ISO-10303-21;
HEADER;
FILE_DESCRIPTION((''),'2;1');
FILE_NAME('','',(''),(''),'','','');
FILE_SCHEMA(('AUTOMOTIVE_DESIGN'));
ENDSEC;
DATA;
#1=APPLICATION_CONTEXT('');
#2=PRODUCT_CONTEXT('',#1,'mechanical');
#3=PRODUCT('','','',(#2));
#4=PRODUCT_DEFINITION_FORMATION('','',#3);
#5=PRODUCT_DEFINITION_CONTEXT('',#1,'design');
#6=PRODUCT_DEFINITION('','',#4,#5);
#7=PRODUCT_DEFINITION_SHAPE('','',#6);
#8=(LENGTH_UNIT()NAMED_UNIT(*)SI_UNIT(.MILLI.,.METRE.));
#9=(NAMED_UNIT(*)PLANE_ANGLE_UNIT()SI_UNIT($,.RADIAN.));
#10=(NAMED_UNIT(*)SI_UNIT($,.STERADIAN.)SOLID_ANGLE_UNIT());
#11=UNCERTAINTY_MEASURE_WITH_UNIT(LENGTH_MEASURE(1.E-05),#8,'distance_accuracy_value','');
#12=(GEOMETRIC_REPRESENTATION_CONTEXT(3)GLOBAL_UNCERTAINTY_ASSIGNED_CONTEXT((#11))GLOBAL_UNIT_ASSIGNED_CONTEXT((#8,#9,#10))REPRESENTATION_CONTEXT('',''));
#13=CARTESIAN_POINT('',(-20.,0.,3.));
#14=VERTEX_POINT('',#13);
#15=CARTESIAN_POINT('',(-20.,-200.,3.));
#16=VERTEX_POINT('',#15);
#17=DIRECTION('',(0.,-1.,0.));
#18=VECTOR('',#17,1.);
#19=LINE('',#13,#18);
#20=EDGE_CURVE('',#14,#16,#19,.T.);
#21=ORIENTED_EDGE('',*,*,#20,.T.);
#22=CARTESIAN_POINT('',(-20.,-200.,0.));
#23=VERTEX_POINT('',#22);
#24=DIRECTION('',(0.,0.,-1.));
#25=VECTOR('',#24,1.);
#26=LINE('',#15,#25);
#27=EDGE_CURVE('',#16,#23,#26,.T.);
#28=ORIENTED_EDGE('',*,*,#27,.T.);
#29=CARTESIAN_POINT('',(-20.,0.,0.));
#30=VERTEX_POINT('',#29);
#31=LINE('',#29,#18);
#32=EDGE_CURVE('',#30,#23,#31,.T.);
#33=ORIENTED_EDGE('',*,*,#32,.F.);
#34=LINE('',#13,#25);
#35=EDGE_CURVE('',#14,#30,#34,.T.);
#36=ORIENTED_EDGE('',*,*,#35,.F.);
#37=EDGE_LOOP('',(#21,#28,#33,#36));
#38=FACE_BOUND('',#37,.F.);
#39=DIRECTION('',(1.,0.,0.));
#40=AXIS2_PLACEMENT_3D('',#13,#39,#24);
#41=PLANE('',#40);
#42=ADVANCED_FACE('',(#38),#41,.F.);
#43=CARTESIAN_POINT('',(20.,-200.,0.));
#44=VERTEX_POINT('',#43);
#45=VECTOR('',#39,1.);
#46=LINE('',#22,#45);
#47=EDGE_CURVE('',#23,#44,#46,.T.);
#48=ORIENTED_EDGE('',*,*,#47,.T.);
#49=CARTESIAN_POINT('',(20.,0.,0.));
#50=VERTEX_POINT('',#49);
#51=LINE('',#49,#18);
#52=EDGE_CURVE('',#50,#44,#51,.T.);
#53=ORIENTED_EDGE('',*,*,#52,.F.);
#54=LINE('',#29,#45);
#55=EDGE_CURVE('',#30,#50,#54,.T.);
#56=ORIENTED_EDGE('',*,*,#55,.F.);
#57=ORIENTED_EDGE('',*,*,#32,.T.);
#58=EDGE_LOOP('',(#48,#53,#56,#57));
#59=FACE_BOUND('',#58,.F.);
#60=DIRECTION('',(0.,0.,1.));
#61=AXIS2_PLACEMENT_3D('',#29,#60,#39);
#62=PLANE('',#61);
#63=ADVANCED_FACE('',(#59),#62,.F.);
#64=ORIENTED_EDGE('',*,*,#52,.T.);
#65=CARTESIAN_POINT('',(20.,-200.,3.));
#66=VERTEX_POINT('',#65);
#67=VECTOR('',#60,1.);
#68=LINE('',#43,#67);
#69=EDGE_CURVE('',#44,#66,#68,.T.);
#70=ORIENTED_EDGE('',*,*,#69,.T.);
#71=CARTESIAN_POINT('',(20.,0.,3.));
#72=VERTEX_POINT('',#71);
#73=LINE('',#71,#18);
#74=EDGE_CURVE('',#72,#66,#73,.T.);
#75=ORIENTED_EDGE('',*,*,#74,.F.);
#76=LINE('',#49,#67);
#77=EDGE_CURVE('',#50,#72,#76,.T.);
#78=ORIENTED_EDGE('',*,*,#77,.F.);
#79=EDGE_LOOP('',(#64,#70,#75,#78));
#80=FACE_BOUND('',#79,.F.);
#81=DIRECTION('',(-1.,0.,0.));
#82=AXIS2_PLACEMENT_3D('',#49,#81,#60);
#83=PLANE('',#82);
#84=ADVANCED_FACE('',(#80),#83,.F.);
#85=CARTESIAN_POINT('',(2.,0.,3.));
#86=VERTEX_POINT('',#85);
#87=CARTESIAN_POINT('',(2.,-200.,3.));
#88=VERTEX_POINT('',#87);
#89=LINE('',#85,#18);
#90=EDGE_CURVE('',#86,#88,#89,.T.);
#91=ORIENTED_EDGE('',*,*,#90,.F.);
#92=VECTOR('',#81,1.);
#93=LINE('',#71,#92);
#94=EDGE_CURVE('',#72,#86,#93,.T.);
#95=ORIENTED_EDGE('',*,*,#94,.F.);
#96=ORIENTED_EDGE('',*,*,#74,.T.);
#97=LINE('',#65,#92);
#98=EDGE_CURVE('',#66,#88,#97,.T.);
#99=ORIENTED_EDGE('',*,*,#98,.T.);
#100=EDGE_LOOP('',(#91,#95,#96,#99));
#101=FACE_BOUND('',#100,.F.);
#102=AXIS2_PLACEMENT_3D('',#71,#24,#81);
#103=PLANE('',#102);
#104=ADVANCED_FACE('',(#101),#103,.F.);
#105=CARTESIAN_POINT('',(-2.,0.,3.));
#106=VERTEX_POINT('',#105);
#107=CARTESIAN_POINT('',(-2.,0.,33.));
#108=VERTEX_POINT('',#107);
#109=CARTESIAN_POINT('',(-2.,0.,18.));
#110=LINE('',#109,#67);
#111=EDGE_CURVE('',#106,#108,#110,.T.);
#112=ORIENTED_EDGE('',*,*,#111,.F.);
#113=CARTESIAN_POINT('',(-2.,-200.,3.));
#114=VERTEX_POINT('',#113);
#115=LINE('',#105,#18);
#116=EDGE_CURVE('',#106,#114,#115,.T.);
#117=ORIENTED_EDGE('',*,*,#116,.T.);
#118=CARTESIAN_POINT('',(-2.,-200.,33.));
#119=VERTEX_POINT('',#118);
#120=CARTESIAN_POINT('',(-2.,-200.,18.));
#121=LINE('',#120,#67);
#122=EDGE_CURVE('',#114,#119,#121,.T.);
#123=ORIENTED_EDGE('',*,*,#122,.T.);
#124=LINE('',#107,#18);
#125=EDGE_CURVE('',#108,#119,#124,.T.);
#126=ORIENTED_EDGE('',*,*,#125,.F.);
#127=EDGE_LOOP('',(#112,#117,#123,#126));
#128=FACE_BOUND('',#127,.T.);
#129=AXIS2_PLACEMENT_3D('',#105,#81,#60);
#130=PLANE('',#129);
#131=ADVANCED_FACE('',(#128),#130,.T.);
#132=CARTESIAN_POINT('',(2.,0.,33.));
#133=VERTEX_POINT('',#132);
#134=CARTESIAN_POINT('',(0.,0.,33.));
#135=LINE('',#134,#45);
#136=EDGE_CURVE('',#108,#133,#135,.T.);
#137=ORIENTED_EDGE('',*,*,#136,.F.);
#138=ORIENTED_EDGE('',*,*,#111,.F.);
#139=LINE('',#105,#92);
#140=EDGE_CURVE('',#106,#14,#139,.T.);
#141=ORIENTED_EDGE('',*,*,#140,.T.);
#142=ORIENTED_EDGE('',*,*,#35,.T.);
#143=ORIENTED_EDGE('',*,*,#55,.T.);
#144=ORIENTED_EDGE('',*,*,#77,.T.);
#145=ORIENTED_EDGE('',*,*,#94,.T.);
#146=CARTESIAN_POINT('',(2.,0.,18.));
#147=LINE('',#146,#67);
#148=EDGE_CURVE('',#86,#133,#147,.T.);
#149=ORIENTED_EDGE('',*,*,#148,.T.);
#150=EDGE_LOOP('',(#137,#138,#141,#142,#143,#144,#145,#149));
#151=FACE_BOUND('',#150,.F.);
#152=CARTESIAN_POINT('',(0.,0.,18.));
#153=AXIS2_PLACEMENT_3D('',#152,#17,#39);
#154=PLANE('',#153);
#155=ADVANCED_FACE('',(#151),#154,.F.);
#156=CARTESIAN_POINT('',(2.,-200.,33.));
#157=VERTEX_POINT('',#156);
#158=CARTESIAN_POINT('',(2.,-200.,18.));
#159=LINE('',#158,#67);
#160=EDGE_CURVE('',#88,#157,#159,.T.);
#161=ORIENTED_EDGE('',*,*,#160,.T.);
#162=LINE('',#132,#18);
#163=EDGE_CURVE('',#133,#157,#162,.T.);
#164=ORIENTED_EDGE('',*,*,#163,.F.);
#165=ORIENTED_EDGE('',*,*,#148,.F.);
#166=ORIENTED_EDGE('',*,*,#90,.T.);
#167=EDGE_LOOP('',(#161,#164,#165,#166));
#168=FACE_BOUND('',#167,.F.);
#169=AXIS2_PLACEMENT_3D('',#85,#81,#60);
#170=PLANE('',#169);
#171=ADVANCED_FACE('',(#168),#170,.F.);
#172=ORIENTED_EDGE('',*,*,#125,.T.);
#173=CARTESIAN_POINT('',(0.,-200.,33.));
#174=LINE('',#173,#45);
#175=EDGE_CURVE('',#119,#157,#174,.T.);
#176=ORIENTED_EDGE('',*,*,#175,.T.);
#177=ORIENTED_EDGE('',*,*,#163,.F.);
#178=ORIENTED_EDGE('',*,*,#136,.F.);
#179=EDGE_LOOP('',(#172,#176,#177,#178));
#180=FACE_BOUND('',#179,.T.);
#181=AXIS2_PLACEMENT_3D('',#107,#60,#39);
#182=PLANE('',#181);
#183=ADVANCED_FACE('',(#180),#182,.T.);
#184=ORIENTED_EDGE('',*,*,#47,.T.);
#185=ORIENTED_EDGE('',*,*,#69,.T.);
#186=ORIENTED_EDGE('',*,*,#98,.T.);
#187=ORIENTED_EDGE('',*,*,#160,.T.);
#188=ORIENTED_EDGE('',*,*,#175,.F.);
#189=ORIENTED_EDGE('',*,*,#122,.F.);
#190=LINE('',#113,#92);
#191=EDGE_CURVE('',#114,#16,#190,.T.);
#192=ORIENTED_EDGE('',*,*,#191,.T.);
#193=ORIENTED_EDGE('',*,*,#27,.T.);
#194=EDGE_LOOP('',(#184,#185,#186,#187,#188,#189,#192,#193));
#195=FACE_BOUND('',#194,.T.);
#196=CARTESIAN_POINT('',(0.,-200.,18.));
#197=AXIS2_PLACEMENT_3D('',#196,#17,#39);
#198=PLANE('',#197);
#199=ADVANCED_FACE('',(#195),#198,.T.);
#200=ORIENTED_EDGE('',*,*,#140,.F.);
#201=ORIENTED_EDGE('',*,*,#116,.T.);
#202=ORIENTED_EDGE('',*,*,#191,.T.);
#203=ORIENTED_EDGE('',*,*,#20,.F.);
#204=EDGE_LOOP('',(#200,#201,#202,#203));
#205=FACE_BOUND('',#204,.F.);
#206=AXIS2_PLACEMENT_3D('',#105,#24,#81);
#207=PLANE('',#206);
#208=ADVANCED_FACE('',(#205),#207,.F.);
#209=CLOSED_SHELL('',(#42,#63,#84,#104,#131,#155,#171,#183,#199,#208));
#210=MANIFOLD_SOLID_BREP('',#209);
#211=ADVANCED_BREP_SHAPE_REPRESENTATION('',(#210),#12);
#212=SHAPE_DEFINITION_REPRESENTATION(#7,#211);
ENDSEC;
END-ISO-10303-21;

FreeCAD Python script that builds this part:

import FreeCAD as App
import Part
import Sketcher

V = App.Vector
Q = App.Units.Quantity


def add_polygon(sketch, points):
    """Adds a closed chain of lines whose ends are joined by coincident constraints."""
    first, n = sketch.GeometryCount, len(points)
    for a, b in zip(points, points[1:] + points[:1]):
        sketch.addGeometry(Part.LineSegment(App.Vector(*a, 0), App.Vector(*b, 0)), False)
    for i in range(n):
        sketch.addConstraint(Sketcher.Constraint("Coincident", first + i, 2, first + (i + 1) % n, 1))

doc = App.newDocument("Part")
params = doc.addObject("Spreadsheet::Sheet", "Params")
for row, (alias, value) in enumerate([
    ("sketch1_width", "18 mm"),
    ("sketch1_width2", "40 mm"),
    ("sketch1_height", "30 mm"),
    ("sketch1_height2", "3 mm"),
    ("pad1_length", "200 mm"),
], start=1):
    params.set(f"A{row}", alias)
    params.set(f"B{row}", "=" + value)
    params.setAlias(f"B{row}", alias)

body = doc.addObject("PartDesign::Body", "Body")

sketch1 = body.newObject("Sketcher::SketchObject", "Sketch")
sketch1.AttachmentSupport = (doc.getObject("XZ_Plane"), [""])
sketch1.MapMode = "FlatFace"
add_polygon(sketch1, [(-2, 33), (-2, 3), (-20, 3), (-20, 0), (20, 0), (20, 3), (2, 3), (2, 33)])
sketch1.addConstraint([
    Sketcher.Constraint("Vertical", 0),
    Sketcher.Constraint("Horizontal", 1),
    Sketcher.Constraint("Vertical", 2),
    Sketcher.Constraint("Horizontal", 3),
    Sketcher.Constraint("Vertical", 4),
    Sketcher.Constraint("Horizontal", 5),
    Sketcher.Constraint("Vertical", 6),
    Sketcher.Constraint("Horizontal", 7),
    Sketcher.Constraint("Symmetric", 2, 2, 3, 2, -1, 1),
    Sketcher.Constraint("Symmetric", 0, 2, 5, 2, -2),
    Sketcher.Constraint("DistanceX", 1, 2, 1, 1, Q("18 mm")),
    Sketcher.Constraint("DistanceX", 3, 1, 3, 2, Q("40 mm")),
    Sketcher.Constraint("DistanceY", 0, 2, 0, 1, Q("30 mm")),
    Sketcher.Constraint("DistanceY", 2, 2, 2, 1, Q("3 mm")),
])
sketch1.setExpression("Constraints[18]", "Params.sketch1_width")
sketch1.setExpression("Constraints[19]", "Params.sketch1_width2")
sketch1.setExpression("Constraints[20]", "Params.sketch1_height")
sketch1.setExpression("Constraints[21]", "Params.sketch1_height2")
pad1 = body.newObject("PartDesign::Pad", "Pad")
pad1.Profile = sketch1
pad1.setExpression("Length", "Params.pad1_length")

doc.recompute()
